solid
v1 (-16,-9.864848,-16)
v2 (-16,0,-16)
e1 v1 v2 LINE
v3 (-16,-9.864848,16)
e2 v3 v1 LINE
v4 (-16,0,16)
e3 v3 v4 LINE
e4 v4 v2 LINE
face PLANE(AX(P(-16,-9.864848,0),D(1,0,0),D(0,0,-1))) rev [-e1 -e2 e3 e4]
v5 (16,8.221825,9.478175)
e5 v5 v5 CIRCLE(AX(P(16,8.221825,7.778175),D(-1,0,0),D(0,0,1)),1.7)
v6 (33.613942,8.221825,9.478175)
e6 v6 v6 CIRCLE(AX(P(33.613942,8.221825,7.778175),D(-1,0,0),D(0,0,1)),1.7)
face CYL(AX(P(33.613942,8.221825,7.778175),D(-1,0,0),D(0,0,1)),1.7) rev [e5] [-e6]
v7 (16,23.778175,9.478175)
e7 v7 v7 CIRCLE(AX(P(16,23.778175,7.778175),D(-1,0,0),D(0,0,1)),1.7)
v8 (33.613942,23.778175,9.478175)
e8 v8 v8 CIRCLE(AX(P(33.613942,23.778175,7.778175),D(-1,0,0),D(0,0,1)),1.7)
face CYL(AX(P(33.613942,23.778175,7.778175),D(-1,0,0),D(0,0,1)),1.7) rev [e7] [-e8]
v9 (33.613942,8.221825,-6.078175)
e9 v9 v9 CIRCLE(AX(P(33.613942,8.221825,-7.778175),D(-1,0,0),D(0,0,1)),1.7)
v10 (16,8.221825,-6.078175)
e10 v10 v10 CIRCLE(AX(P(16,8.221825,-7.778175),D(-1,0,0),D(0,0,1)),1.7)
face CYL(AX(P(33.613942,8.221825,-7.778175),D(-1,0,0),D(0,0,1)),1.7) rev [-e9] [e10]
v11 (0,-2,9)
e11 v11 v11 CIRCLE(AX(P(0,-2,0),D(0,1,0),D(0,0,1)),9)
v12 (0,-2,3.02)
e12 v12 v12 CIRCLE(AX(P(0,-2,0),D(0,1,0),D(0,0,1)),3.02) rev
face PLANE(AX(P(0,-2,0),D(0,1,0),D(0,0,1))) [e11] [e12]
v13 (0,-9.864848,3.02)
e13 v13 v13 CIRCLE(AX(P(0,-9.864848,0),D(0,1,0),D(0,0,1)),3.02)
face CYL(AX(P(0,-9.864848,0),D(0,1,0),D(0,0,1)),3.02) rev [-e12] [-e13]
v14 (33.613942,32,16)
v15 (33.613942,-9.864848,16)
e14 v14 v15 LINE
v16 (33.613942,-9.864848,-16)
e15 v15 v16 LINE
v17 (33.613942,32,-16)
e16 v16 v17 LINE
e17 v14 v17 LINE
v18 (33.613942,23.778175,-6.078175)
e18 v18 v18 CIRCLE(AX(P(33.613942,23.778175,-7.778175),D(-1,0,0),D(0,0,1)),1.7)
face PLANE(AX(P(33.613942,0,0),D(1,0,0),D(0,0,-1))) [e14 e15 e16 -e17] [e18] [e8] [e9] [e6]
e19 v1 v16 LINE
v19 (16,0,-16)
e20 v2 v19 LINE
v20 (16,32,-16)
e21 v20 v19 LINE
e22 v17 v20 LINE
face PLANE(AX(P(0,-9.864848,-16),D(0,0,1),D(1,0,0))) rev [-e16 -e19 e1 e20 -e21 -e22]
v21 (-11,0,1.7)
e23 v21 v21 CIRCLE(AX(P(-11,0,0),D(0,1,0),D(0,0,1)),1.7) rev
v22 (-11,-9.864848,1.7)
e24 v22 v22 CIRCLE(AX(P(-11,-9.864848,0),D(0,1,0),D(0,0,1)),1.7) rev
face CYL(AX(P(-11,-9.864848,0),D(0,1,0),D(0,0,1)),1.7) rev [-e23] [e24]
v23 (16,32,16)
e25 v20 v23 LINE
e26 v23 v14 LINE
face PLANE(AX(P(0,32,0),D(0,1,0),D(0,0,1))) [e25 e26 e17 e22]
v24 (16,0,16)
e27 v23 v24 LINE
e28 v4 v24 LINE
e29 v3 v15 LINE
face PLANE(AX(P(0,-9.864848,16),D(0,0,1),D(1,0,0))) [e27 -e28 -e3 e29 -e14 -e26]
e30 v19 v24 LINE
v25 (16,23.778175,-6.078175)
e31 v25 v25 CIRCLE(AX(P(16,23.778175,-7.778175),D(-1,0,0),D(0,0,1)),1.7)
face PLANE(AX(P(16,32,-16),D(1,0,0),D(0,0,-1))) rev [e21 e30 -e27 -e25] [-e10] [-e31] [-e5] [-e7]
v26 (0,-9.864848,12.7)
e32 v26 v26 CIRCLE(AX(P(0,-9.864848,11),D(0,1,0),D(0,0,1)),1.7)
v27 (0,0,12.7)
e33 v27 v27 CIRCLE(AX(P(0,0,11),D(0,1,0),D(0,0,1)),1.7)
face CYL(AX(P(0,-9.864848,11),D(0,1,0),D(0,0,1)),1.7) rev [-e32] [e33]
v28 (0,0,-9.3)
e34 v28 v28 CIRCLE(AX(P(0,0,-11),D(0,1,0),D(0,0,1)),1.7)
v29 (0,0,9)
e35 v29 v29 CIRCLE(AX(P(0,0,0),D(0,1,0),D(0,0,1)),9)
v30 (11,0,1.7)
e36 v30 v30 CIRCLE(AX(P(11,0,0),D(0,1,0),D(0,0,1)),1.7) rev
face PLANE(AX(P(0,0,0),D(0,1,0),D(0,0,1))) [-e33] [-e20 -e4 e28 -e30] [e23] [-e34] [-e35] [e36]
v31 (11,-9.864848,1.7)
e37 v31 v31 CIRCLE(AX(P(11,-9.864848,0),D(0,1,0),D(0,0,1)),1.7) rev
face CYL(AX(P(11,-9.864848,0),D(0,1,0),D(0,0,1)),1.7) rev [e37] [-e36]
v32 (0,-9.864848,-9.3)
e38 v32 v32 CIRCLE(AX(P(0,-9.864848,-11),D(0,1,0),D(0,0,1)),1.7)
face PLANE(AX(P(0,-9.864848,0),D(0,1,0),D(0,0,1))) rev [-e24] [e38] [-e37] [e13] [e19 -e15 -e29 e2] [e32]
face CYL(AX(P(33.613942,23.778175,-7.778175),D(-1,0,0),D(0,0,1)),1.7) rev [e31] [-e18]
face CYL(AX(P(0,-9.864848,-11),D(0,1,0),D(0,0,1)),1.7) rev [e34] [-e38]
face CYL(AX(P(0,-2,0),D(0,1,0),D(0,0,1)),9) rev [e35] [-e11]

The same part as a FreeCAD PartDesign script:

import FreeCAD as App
import Part
import Sketcher


def add_polygon(sketch, points):
    """Adds a closed chain of lines whose ends are joined by coincident constraints."""
    first, n = sketch.GeometryCount, len(points)
    for a, b in zip(points, points[1:] + points[:1]):
        sketch.addGeometry(Part.LineSegment(App.Vector(*a, 0), App.Vector(*b, 0)), False)
    for i in range(n):
        sketch.addConstraint(Sketcher.Constraint("Coincident", first + i, 2, first + (i + 1) % n, 1))

doc = App.newDocument("Part")
body = doc.addObject("PartDesign::Body", "Body")

# Sketch on XZ plane
sketch1 = doc.addObject("Sketcher::SketchObject", "Sketch")
body.addObject(sketch1)
sketch1.AttachmentSupport = (doc.XZ_Plane, [""])
sketch1.MapMode = "FlatFace"
add_polygon(sketch1, [(-16, -16), (-16, 16), (16, 16), (16, -16)])  # lines 0-3
sketch1.addGeometry(Part.Circle(App.Vector(0, 11, 0), App.Vector(0, 0, 1), 1.7), False)  # 4
sketch1.addGeometry(Part.Circle(App.Vector(-11, 0, 0), App.Vector(0, 0, 1), 1.7), False)  # 5
sketch1.addGeometry(Part.Circle(App.Vector(0, 0, 0), App.Vector(0, 0, 1), 3), False)  # 6
sketch1.addGeometry(Part.Circle(App.Vector(11, 0, 0), App.Vector(0, 0, 1), 1.7), False)  # 7
sketch1.addGeometry(Part.Circle(App.Vector(0, -11, 0), App.Vector(0, 0, 1), 1.7), False)  # 8
sketch1.addConstraint(Sketcher.Constraint("Vertical", 0))
sketch1.addConstraint(Sketcher.Constraint("Horizontal", 1))
sketch1.addConstraint(Sketcher.Constraint("Vertical", 2))
sketch1.addConstraint(Sketcher.Constraint("Horizontal", 3))
sketch1.addConstraint(Sketcher.Constraint("Coincident", 6, 3, -1, 1))
sketch1.addConstraint(Sketcher.Constraint("Equal", 4, 5))
sketch1.addConstraint(Sketcher.Constraint("Equal", 5, 7))
sketch1.addConstraint(Sketcher.Constraint("Equal", 7, 8))
sketch1.addConstraint(Sketcher.Constraint("Symmetric", 5, 3, 7, 3, -1, 1))
sketch1.addConstraint(Sketcher.Constraint("Symmetric", 4, 3, 8, 3, -1, 1))
sketch1.addConstraint(Sketcher.Constraint("Symmetric", 0, 2, 2, 2, -1, 1))
sketch1.addConstraint(Sketcher.Constraint("PointOnObject", 4, 3, -2))
sketch1.addConstraint(Sketcher.Constraint("PointOnObject", 5, 3, -1))
sketch1.addConstraint(Sketcher.Constraint("Equal", 3, 0))
sketch1.addConstraint(Sketcher.Constraint("Diameter", 4, 3.4))
sketch1.addConstraint(Sketcher.Constraint("Diameter", 6, 6.04))
sketch1.addConstraint(Sketcher.Constraint("DistanceX", 1, 1, 1, 2, 32.0))
sketch1.addConstraint(Sketcher.Constraint("DistanceY", -1, 1, 4, 3, 11.0))
sketch1.addConstraint(Sketcher.Constraint("DistanceX", 5, 3, -1, 1, 11.0))
pad1 = doc.addObject("PartDesign::Pad", "Pad")
body.addObject(pad1)
pad1.Profile = sketch1
pad1.Length = 9.864848

# Sketch on XZ plane
sketch2 = doc.addObject("Sketcher::SketchObject", "Sketch001")
body.addObject(sketch2)
sketch2.AttachmentSupport = (doc.XZ_Plane, [""])
sketch2.MapMode = "FlatFace"
sketch2.addGeometry(Part.Circle(App.Vector(0, 0, 0), App.Vector(0, 0, 1), 9), False)
sketch2.addConstraint(Sketcher.Constraint("Coincident", 0, 3, -1, 1))
sketch2.addConstraint(Sketcher.Constraint("Diameter", 0, 18.0))
pocket1 = doc.addObject("PartDesign::Pocket", "Pocket")
body.addObject(pocket1)
pocket1.Profile = sketch2
pocket1.Length = 2
pocket1.Reversed = True

# Sketch on YZ plane
sketch3 = doc.addObject("Sketcher::SketchObject", "Sketch002")
body.addObject(sketch3)
sketch3.AttachmentSupport = (doc.YZ_Plane, [""])
sketch3.MapMode = "FlatFace"
sketch3.AttachmentOffset = App.Placement(App.Vector(0, 0, 16), App.Rotation())
add_polygon(sketch3, [(0, 16), (-10, 16), (-10, -16), (0, -16)])  # lines 0-3
sketch3.addConstraint(Sketcher.Constraint("Horizontal", 0))
sketch3.addConstraint(Sketcher.Constraint("Vertical", 1))
sketch3.addConstraint(Sketcher.Constraint("Horizontal", 2))
sketch3.addConstraint(Sketcher.Constraint("Vertical", 3))
sketch3.addConstraint(Sketcher.Constraint("Symmetric", 2, 2, 3, 2, -1, 1))
sketch3.addConstraint(Sketcher.Constraint("DistanceY", 1, 2, 1, 1, 32.0))
sketch3.addConstraint(Sketcher.Constraint("DistanceX", 0, 2, 0, 1, 9.864848))
pad2 = doc.addObject("PartDesign::Pad", "Pad001")
body.addObject(pad2)
pad2.Profile = sketch3
pad2.Length = 17.613942

# Sketch on XZ plane
sketch4 = doc.addObject("Sketcher::SketchObject", "Sketch003")
body.addObject(sketch4)
sketch4.AttachmentSupport = (doc.XZ_Plane, [""])
sketch4.MapMode = "FlatFace"
add_polygon(sketch4, [(16, -16), (16, 16), (34, 16), (34, -16)])  # lines 0-3
sketch4.addConstraint(Sketcher.Constraint("Vertical", 0))
sketch4.addConstraint(Sketcher.Constraint("Horizontal", 1))
sketch4.addConstraint(Sketcher.Constraint("Vertical", 2))
sketch4.addConstraint(Sketcher.Constraint("Horizontal", 3))
sketch4.addConstraint(Sketcher.Constraint("DistanceY", 0, 1, 0, 2, 32.0))
sketch4.addConstraint(Sketcher.Constraint("DistanceX", -1, 1, 0, 2, 16.0))
sketch4.addConstraint(Sketcher.Constraint("DistanceY", -1, 1, 0, 2, 16.0))
sketch4.addConstraint(Sketcher.Constraint("DistanceX", 1, 1, 1, 2, 17.613942))
pad3 = doc.addObject("PartDesign::Pad", "Pad002")
body.addObject(pad3)
pad3.Profile = sketch4
pad3.Length = 32
pad3.Reversed = True

# Sketch on YZ plane
sketch5 = doc.addObject("Sketcher::SketchObject", "Sketch004")
body.addObject(sketch5)
sketch5.AttachmentSupport = (doc.YZ_Plane, [""])
sketch5.MapMode = "FlatFace"
sketch5.AttachmentOffset = App.Placement(App.Vector(0, 0, 16), App.Rotation())
sketch5.addGeometry(Part.Circle(App.Vector(23.8, -7.8, 0), App.Vector(0, 0, 1), 1.7), False)
sketch5.addGeometry(Part.Circle(App.Vector(23.8, 7.8, 0), App.Vector(0, 0, 1), 1.7), False)
sketch5.addGeometry(Part.Circle(App.Vector(8.2, 7.8, 0), App.Vector(0, 0, 1), 1.7), False)
sketch5.addGeometry(Part.Circle(App.Vector(8.2, -7.8, 0), App.Vector(0, 0, 1), 1.7), False)
sketch5.addConstraint(Sketcher.Constraint("Equal", 0, 1))
sketch5.addConstraint(Sketcher.Constraint("Equal", 1, 2))
sketch5.addConstraint(Sketcher.Constraint("Equal", 2, 3))
sketch5.addConstraint(Sketcher.Constraint("Symmetric", 0, 3, 1, 3, -1))
sketch5.addConstraint(Sketcher.Constraint("Symmetric", 2, 3, 3, 3, -1))
sketch5.addConstraint(Sketcher.Constraint("Horizontal", 1, 3, 2, 3))
sketch5.addConstraint(Sketcher.Constraint("Diameter", 0, 3.4))
sketch5.addConstraint(Sketcher.Constraint("DistanceY", 0, 3, 1, 3, 15.556349))
sketch5.addConstraint(Sketcher.Constraint("DistanceX", 2, 3, 1, 3, 15.556349))
sketch5.addConstraint(Sketcher.Constraint("DistanceX", -1, 1, 0, 3, 23.778175))
pocket2 = doc.addObject("PartDesign::Pocket", "Pocket001")
body.addObject(pocket2)
pocket2.Profile = sketch5
pocket2.Type = "ThroughAll"
pocket2.Reversed = True

doc.recompute()
